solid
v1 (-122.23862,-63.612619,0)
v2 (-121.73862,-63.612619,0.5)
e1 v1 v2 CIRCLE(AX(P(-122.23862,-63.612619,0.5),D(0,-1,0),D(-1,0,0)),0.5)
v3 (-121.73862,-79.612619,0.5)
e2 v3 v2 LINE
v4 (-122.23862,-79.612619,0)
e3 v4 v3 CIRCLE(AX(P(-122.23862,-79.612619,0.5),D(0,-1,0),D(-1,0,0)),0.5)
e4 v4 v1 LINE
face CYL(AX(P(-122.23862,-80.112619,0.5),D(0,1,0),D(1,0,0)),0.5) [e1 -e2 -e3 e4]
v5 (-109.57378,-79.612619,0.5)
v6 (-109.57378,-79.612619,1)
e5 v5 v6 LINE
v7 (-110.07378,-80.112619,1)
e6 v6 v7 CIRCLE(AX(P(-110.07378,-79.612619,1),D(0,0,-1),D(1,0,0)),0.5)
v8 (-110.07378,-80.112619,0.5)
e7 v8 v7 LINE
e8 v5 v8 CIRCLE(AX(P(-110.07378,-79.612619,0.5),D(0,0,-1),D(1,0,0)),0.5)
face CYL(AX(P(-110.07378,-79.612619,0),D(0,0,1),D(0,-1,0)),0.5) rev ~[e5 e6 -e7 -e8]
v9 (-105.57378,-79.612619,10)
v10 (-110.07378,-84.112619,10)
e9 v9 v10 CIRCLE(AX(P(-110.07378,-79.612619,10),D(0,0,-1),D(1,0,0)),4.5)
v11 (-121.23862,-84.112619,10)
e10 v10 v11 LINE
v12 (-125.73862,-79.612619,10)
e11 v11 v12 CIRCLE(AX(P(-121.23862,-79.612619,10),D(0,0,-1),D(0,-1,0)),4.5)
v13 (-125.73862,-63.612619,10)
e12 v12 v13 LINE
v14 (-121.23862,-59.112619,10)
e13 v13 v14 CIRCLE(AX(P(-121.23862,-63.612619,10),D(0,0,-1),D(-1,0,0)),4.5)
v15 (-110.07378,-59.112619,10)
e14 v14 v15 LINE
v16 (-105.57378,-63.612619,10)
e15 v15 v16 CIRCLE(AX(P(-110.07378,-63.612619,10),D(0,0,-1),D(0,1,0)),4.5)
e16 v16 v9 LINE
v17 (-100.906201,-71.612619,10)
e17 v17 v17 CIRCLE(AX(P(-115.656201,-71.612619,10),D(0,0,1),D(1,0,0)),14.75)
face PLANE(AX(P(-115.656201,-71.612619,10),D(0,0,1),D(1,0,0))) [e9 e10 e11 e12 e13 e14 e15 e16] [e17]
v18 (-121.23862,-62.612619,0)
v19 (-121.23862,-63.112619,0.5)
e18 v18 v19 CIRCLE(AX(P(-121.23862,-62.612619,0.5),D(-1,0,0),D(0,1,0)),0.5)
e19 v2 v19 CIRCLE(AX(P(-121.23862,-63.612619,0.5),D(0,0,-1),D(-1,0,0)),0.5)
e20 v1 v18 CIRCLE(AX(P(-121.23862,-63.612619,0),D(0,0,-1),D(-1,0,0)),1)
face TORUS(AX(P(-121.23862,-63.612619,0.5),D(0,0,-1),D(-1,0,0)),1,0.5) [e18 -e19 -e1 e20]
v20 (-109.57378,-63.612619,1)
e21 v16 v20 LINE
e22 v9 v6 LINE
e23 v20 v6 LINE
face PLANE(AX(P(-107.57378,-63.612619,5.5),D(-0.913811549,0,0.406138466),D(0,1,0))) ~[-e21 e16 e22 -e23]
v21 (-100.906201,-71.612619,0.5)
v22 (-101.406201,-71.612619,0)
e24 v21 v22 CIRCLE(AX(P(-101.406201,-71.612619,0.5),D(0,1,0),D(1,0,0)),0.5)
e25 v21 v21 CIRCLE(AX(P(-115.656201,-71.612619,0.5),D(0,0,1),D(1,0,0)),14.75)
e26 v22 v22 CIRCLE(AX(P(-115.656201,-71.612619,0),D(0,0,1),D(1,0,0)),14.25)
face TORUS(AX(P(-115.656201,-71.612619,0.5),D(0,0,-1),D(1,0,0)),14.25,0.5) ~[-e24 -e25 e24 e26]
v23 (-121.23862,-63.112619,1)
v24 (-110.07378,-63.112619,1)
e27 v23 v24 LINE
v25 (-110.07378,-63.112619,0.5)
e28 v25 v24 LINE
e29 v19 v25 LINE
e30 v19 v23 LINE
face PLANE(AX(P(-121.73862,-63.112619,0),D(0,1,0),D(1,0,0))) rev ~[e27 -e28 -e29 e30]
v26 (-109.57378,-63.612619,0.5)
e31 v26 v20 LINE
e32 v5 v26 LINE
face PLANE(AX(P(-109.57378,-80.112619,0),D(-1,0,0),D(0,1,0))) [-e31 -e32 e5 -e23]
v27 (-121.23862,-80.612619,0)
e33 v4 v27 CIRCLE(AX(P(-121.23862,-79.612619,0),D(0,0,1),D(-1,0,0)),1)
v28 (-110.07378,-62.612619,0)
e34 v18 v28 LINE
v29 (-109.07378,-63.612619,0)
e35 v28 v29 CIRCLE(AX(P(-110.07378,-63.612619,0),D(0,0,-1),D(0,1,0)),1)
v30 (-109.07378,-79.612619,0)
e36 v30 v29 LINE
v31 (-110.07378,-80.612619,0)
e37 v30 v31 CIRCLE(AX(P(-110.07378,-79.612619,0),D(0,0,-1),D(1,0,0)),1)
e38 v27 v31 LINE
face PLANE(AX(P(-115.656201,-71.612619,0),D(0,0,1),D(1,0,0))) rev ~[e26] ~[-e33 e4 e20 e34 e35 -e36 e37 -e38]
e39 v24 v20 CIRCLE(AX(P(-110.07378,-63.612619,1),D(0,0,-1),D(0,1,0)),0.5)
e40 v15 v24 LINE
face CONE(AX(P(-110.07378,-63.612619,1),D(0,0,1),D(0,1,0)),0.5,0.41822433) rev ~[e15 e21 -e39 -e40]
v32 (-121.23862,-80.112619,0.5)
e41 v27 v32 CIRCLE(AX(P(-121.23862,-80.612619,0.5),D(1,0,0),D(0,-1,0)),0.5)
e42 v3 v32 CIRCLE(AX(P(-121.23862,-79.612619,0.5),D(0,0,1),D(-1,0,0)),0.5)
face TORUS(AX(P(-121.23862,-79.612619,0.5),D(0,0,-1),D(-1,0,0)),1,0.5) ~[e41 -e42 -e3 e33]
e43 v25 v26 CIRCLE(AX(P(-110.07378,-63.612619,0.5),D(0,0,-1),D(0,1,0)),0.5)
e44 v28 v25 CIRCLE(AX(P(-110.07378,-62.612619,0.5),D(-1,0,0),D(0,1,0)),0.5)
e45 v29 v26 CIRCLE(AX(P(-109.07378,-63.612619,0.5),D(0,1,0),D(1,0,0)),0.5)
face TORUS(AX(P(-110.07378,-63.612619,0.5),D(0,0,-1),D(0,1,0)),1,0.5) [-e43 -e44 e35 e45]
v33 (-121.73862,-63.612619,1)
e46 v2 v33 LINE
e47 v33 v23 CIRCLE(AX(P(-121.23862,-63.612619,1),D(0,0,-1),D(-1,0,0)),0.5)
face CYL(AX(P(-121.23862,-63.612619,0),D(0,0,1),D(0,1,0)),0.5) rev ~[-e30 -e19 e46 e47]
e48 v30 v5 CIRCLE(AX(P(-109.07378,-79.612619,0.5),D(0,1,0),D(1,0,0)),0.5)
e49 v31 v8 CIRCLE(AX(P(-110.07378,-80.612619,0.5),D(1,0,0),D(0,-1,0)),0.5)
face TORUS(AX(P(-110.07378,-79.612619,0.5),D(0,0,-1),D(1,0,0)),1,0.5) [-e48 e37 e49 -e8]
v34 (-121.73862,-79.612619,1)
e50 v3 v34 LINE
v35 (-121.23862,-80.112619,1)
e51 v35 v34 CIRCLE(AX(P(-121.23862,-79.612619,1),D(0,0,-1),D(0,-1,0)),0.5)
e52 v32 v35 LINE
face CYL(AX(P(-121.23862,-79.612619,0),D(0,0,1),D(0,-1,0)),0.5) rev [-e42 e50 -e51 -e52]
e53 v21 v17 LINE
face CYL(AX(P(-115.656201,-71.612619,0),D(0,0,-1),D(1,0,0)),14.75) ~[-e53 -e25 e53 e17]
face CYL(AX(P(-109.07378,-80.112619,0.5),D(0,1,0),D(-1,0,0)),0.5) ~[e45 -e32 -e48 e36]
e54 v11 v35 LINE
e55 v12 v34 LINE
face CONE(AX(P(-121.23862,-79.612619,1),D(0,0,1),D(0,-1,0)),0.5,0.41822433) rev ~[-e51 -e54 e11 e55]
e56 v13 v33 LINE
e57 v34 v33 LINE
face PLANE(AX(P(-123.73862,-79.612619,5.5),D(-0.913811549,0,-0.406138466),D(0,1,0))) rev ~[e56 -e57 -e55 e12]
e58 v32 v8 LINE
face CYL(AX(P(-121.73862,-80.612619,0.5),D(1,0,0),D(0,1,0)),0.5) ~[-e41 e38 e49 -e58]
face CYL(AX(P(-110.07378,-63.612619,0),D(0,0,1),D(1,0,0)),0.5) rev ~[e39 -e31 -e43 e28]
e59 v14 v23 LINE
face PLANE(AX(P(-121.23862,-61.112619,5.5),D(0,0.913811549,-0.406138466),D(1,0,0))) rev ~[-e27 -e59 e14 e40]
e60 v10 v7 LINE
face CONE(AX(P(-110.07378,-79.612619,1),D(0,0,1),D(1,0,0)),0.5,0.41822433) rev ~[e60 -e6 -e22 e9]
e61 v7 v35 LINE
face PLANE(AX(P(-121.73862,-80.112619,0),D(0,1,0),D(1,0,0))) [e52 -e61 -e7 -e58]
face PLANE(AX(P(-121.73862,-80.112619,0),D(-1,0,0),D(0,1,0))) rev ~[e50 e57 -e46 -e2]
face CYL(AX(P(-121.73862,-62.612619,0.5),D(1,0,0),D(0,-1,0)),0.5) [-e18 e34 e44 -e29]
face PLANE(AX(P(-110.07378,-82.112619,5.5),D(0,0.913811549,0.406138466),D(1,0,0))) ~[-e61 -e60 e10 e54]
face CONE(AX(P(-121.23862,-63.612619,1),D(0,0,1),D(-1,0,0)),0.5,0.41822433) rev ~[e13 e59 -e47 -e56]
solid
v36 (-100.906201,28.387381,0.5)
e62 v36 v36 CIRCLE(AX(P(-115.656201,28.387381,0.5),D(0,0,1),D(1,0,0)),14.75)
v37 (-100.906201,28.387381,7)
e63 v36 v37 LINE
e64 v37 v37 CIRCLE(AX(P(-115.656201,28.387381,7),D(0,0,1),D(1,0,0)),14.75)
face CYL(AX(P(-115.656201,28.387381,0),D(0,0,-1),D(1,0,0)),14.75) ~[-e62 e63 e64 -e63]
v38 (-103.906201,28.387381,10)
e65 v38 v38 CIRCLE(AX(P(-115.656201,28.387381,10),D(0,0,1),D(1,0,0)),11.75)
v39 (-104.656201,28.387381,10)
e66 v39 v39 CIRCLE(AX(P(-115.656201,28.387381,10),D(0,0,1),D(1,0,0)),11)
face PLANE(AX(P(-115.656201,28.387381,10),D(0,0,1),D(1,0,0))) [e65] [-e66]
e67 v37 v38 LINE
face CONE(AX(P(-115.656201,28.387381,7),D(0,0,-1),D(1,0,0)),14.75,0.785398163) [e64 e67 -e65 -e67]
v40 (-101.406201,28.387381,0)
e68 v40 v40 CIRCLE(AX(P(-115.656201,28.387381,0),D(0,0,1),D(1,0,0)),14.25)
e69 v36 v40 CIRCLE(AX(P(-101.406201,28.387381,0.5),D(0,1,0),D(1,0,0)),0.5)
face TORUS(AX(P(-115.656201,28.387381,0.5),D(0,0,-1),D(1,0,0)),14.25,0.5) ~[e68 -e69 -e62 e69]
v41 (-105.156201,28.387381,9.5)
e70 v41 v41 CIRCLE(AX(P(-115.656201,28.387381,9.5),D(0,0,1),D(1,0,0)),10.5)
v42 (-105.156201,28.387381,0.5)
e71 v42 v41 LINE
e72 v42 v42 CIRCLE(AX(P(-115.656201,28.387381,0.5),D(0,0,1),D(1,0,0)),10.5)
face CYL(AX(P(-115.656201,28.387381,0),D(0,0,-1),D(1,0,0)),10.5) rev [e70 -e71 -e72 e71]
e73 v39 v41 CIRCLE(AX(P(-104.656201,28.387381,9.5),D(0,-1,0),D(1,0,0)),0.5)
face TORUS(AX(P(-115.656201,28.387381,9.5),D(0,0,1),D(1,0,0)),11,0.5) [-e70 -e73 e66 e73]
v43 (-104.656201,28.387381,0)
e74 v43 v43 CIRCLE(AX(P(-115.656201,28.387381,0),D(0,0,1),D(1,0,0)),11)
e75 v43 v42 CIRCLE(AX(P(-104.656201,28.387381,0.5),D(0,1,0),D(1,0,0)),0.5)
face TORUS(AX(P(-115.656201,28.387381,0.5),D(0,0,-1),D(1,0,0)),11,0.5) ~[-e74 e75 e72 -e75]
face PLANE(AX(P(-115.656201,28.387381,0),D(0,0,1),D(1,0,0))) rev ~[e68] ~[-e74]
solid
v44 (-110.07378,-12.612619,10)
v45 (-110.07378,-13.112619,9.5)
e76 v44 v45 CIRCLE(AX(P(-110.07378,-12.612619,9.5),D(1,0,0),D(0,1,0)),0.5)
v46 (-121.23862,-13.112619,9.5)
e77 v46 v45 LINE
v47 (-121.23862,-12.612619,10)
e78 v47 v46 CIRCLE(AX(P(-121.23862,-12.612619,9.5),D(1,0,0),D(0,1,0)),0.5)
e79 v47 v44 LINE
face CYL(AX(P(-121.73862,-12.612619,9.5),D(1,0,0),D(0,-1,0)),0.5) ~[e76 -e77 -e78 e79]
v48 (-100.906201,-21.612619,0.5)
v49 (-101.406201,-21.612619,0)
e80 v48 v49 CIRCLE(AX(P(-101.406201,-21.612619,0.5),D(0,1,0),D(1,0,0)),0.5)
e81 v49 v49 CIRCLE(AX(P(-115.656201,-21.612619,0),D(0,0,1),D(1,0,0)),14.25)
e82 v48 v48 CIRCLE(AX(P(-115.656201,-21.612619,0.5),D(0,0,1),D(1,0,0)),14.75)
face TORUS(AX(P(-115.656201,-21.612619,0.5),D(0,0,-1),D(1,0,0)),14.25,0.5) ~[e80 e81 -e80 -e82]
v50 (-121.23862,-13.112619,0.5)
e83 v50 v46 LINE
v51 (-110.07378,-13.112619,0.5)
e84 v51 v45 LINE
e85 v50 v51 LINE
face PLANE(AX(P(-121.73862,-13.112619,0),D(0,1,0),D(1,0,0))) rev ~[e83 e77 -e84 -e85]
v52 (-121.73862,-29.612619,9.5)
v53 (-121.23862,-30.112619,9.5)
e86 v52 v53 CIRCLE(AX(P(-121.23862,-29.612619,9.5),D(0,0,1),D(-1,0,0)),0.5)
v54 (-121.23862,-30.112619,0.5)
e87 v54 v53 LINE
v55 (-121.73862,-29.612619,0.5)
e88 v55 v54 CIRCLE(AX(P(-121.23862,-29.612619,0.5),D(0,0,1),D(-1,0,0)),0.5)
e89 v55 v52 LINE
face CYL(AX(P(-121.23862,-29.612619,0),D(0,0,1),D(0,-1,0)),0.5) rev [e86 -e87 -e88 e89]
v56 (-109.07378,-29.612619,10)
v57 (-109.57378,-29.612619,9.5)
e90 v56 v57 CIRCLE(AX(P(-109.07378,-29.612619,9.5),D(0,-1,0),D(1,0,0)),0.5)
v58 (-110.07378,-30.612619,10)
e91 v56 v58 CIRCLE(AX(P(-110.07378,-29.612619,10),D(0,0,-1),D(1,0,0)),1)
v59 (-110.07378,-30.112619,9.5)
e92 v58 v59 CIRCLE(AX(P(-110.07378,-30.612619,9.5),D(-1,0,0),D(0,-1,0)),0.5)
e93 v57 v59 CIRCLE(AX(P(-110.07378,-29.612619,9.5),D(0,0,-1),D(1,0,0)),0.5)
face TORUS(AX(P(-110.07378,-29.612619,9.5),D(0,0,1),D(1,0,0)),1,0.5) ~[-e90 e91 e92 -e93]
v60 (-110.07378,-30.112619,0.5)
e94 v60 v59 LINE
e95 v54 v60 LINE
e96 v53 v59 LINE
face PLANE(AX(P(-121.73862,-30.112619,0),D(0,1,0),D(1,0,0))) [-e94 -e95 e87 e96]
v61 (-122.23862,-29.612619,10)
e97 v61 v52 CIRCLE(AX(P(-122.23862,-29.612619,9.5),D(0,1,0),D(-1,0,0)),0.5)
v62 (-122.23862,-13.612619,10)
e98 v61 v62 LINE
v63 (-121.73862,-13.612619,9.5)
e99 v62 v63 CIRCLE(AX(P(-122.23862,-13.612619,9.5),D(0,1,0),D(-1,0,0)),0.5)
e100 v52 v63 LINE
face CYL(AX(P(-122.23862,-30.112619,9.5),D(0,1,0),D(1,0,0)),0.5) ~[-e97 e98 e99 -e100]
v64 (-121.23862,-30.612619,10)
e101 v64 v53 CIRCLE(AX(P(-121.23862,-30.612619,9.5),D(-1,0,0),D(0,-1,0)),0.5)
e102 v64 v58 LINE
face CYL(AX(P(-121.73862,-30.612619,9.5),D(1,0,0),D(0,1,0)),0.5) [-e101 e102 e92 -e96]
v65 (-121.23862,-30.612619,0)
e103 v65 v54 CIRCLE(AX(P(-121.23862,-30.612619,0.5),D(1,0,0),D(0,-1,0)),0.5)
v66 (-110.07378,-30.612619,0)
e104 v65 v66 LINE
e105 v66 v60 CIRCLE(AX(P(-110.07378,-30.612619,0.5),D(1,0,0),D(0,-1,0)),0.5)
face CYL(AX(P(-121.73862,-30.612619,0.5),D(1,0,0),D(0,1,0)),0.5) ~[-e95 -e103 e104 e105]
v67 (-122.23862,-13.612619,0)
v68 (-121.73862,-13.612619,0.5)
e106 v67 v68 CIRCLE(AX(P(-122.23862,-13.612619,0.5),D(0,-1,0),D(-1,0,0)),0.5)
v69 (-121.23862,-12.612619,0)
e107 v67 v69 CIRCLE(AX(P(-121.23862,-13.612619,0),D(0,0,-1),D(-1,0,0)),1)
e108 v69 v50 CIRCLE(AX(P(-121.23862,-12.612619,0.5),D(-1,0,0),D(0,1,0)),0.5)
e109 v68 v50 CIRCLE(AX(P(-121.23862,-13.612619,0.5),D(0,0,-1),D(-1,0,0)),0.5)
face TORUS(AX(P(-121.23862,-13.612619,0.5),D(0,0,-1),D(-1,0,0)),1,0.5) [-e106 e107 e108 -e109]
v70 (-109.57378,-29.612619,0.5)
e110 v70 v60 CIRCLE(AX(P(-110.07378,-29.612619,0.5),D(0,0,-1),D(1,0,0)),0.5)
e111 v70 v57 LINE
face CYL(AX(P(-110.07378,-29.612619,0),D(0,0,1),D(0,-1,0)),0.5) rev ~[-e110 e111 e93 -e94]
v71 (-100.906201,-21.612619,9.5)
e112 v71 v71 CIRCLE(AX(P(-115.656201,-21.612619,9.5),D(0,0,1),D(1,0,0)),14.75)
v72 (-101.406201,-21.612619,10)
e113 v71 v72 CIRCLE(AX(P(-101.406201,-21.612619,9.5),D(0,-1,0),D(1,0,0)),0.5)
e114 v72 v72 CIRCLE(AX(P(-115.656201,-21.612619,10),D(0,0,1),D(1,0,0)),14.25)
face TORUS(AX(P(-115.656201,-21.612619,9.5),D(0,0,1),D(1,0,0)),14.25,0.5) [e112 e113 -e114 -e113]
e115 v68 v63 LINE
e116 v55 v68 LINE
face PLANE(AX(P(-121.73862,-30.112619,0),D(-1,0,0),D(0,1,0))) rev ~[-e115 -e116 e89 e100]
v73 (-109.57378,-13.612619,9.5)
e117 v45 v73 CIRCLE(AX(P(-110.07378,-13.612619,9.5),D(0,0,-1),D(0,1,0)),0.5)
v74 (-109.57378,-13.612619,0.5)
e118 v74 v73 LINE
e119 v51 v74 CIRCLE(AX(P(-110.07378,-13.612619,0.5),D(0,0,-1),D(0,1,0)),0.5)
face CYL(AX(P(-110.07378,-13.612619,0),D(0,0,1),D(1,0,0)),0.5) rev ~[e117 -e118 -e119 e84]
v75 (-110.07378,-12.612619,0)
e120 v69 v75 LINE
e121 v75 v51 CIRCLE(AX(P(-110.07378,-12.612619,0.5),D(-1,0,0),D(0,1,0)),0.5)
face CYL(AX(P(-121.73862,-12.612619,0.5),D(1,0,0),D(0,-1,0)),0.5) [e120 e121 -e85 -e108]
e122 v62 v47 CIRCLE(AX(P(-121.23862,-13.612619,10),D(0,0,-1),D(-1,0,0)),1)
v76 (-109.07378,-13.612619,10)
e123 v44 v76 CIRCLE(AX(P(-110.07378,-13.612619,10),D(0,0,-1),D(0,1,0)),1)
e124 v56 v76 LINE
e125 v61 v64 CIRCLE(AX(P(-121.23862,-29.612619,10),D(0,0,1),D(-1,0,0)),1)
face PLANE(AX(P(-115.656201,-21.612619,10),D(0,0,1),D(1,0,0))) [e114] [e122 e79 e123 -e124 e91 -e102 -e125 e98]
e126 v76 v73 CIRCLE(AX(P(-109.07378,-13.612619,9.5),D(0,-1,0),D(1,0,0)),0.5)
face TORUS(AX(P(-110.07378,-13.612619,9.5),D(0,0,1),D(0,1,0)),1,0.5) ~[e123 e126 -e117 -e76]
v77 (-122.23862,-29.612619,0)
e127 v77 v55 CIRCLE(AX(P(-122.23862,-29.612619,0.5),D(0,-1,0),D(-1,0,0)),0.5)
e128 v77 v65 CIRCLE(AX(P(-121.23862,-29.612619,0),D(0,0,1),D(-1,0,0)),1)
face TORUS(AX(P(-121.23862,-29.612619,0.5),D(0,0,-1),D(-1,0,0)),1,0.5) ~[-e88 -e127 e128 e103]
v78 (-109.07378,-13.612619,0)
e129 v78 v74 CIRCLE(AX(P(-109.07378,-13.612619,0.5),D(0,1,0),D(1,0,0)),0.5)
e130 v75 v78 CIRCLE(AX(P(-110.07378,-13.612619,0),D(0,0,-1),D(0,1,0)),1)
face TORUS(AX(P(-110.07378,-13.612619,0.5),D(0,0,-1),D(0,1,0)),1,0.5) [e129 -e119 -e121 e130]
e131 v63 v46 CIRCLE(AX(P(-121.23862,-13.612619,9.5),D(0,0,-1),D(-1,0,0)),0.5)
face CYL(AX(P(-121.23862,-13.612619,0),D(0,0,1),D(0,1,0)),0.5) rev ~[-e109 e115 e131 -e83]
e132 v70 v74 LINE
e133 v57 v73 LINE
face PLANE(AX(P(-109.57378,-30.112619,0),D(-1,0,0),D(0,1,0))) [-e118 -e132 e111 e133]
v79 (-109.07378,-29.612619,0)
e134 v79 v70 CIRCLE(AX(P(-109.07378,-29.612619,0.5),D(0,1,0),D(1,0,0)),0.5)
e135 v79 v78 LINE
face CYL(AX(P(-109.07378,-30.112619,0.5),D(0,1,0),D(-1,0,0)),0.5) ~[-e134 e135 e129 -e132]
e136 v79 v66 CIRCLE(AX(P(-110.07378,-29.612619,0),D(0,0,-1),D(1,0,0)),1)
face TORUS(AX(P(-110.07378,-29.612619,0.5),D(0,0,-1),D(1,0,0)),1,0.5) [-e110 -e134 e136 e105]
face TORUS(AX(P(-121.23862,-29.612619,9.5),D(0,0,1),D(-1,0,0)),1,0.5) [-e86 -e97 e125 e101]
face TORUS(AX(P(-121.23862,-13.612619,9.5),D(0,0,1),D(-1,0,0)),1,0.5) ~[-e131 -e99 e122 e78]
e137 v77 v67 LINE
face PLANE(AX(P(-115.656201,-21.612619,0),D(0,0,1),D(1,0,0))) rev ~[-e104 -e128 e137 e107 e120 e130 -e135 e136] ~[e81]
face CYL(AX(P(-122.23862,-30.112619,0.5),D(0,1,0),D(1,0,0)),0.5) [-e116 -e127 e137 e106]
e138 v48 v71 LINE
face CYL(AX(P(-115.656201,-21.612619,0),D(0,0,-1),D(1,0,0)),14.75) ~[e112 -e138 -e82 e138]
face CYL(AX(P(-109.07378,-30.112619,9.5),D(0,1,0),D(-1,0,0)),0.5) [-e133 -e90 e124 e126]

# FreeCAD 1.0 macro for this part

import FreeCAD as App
import Part
import Sketcher
from FreeCAD import Vector


def edges_at(feature, points):
    """Names of the edges that pass closest to the given points."""
    edges = feature.Shape.Edges
    near = lambda p: min(range(len(edges)), key=lambda i: edges[i].distToShape(Part.Vertex(*p))[0])
    return sorted({f"Edge{near(p) + 1}" for p in points})


def add_polygon(sketch, points):
    """Adds a closed chain of lines whose ends are joined by coincident constraints."""
    first, n = sketch.GeometryCount, len(points)
    for a, b in zip(points, points[1:] + points[:1]):
        sketch.addGeometry(Part.LineSegment(App.Vector(*a, 0), App.Vector(*b, 0)), False)
    for i in range(n):
        sketch.addConstraint(Sketcher.Constraint("Coincident", first + i, 2, first + (i + 1) % n, 1))

doc = App.newDocument("Part")
params = doc.addObject("Spreadsheet::Sheet", "Params")
for row, (alias, value) in enumerate([
    ("sketch1_diameter", "21 mm"),
    ("sketch1_diameter2", "29.5 mm"),
    ("sketch1_height", "17 mm"),
    ("pad1_length", "10 mm"),
    ("chamfer_size", "3 mm"),
    ("fillet_radius", "0.5 mm"),
    ("sketch2_diameter", "29.5 mm"),
    ("sketch2_height", "17 mm"),
    ("pad2_length", "10 mm"),
    ("fillet2_radius", "0.5 mm"),
    ("chamfer2_size", "4 mm"),
    ("chamfer2_size2", "9 mm"),
], start=1):
    params.set(f"A{row}", alias)
    params.set(f"B{row}", "=" + value)
    params.setAlias(f"B{row}", alias)

body = doc.addObject("PartDesign::Body", "Body")
body.AllowCompound = True

sketch1 = doc.addObject("Sketcher::SketchObject", "Sketch")
body.addObject(sketch1)
sketch1.AttachmentSupport = (doc.XY_Plane, [""])
sketch1.MapMode = "FlatFace"
sketch1.addGeometry(Part.Circle(Vector(-115.656201, 28.387381, 0), Vector(0, 0, 1), 14.75), False)
sketch1.addGeometry(Part.Circle(Vector(-115.656201, 28.387381, 0), Vector(0, 0, 1), 10.5), False)
sketch1.addGeometry(Part.Circle(Vector(-115.656201, -21.612619, 0), Vector(0, 0, 1), 14.75), False)
add_polygon(sketch1, [(-109.57378, -30.112619), (-121.73862, -30.112619), (-121.73862, -13.112619), (-109.57378, -13.112619)])
sketch1.addConstraint(Sketcher.Constraint("Horizontal", 3))
sketch1.addConstraint(Sketcher.Constraint("Vertical", 4))
sketch1.addConstraint(Sketcher.Constraint("Horizontal", 5))
sketch1.addConstraint(Sketcher.Constraint("Vertical", 6))
sketch1.addConstraint(Sketcher.Constraint("Coincident", 1, 3, 0, 3))
sketch1.addConstraint(Sketcher.Constraint("Equal", 0, 2))
sketch1.addConstraint(Sketcher.Constraint("Vertical", 1, 3, 2, 3))
sketch1.addConstraint(Sketcher.Constraint("Diameter", 1, 21.0))
sketch1.addConstraint(Sketcher.Constraint("Diameter", 0, 29.5))
sketch1.addConstraint(Sketcher.Constraint("DistanceY", 4, 1, 4, 2, 17.0))
sketch1.addConstraint(Sketcher.Constraint("DistanceY", 2, 3, 0, 3, 50.0))
sketch1.addConstraint(Sketcher.Constraint("DistanceY", 3, 2, 2, 3, 8.5))
sketch1.addConstraint(Sketcher.Constraint("DistanceX", 3, 2, 3, 1, 12.164841))
sketch1.addConstraint(Sketcher.Constraint("DistanceX", 0, 3, -1, 1, 115.656201))
sketch1.addConstraint(Sketcher.Constraint("DistanceY", -1, 1, 0, 3, 28.387381))
sketch1.addConstraint(Sketcher.Constraint("DistanceX", 3, 2, -1, 1, 121.73862))
sketch1.setExpression("Constraints[11]", "Params.sketch1_diameter")
sketch1.setExpression("Constraints[12]", "Params.sketch1_diameter2")
sketch1.setExpression("Constraints[13]", "Params.sketch1_height")
pad1 = doc.addObject("PartDesign::Pad", "Pad")
body.addObject(pad1)
pad1.Profile = sketch1
pad1.setExpression("Length", "Params.pad1_length")
doc.recompute()

chamfer = doc.addObject("PartDesign::Chamfer", "Chamfer")
body.addObject(chamfer)
chamfer.Base = (pad1, edges_at(pad1, [(-130.406, 28.387, 10)]))
chamfer.setExpression("Size", "Params.chamfer_size")
doc.recompute()

fillet = doc.addObject("PartDesign::Fillet", "Fillet")
body.addObject(fillet)
fillet.Base = (chamfer, edges_at(chamfer, [
    (-130.406, -21.613, 0),
    (-121.739, -21.613, 0),
    (-115.656, -13.113, 0),
    (-109.574, -21.613, 0),
    (-115.656, -30.113, 0),
    (-130.406, 28.387, 0),
    (-126.156, 28.387, 0),
    (-130.406, -21.613, 10),
    (-121.739, -21.613, 10),
    (-115.656, -13.113, 10),
    (-109.574, -21.613, 10),
    (-115.656, -30.113, 10),
    (-121.739, -13.113, 5),
    (-109.574, -13.113, 5),
    (-109.574, -30.113, 5),
    (-121.739, -30.113, 5),
    (-105.156, 28.387, 5),
    (-126.156, 28.387, 10),
]))
fillet.setExpression("Radius", "Params.fillet_radius")
body2 = doc.addObject("PartDesign::Body", "Body001")

sketch2 = doc.addObject("Sketcher::SketchObject", "Sketch001")
body2.addObject(sketch2)
sketch2.AttachmentSupport = (doc.getObject("XY_Plane001"), [""])
sketch2.MapMode = "FlatFace"
sketch2.addGeometry(Part.Circle(Vector(-115.656201, -71.612619, 0), Vector(0, 0, 1), 14.75), False)
add_polygon(sketch2, [(-109.57378, -80.112619), (-121.73862, -80.112619), (-121.73862, -63.112619), (-109.57378, -63.112619)])
sketch2.addConstraint(Sketcher.Constraint("Horizontal", 1))
sketch2.addConstraint(Sketcher.Constraint("Vertical", 2))
sketch2.addConstraint(Sketcher.Constraint("Horizontal", 3))
sketch2.addConstraint(Sketcher.Constraint("Vertical", 4))
sketch2.addConstraint(Sketcher.Constraint("Diameter", 0, 29.5))
sketch2.addConstraint(Sketcher.Constraint("DistanceY", 2, 1, 2, 2, 17.0))
sketch2.addConstraint(Sketcher.Constraint("DistanceY", 1, 2, 0, 3, 8.5))
sketch2.addConstraint(Sketcher.Constraint("DistanceX", 1, 2, 1, 1, 12.164841))
sketch2.addConstraint(Sketcher.Constraint("DistanceX", 0, 3, -1, 1, 115.656201))
sketch2.addConstraint(Sketcher.Constraint("DistanceY", 0, 3, -1, 1, 71.612619))
sketch2.addConstraint(Sketcher.Constraint("DistanceX", 1, 2, -1, 1, 121.73862))
sketch2.setExpression("Constraints[8]", "Params.sketch2_diameter")
sketch2.setExpression("Constraints[9]", "Params.sketch2_height")
pad2 = doc.addObject("PartDesign::Pad", "Pad001")
body2.addObject(pad2)
pad2.Profile = sketch2
pad2.setExpression("Length", "Params.pad2_length")
doc.recompute()

fillet2 = doc.addObject("PartDesign::Fillet", "Fillet001")
body2.addObject(fillet2)
fillet2.Base = (pad2, edges_at(pad2, [
    (-130.406, -71.613, 0),
    (-121.739, -71.613, 0),
    (-115.656, -63.113, 0),
    (-109.574, -71.613, 0),
    (-115.656, -80.113, 0),
    (-109.574, -63.113, 5),
    (-121.739, -63.113, 5),
    (-121.739, -80.113, 5),
    (-109.574, -80.113, 5),
]))
fillet2.setExpression("Radius", "Params.fillet2_radius")
doc.recompute()

chamfer2 = doc.addObject("PartDesign::Chamfer", "Chamfer001")
body2.addObject(chamfer2)
chamfer2.Base = (fillet2, edges_at(fillet2, [
    (-115.656, -63.113, 10),
    (-109.574, -71.613, 10),
    (-115.656, -80.113, 10),
    (-121.739, -71.613, 10),
]))
chamfer2.ChamferType = "Two distances"
chamfer2.setExpression("Size", "Params.chamfer2_size")
chamfer2.setExpression("Size2", "Params.chamfer2_size2")

doc.recompute()
